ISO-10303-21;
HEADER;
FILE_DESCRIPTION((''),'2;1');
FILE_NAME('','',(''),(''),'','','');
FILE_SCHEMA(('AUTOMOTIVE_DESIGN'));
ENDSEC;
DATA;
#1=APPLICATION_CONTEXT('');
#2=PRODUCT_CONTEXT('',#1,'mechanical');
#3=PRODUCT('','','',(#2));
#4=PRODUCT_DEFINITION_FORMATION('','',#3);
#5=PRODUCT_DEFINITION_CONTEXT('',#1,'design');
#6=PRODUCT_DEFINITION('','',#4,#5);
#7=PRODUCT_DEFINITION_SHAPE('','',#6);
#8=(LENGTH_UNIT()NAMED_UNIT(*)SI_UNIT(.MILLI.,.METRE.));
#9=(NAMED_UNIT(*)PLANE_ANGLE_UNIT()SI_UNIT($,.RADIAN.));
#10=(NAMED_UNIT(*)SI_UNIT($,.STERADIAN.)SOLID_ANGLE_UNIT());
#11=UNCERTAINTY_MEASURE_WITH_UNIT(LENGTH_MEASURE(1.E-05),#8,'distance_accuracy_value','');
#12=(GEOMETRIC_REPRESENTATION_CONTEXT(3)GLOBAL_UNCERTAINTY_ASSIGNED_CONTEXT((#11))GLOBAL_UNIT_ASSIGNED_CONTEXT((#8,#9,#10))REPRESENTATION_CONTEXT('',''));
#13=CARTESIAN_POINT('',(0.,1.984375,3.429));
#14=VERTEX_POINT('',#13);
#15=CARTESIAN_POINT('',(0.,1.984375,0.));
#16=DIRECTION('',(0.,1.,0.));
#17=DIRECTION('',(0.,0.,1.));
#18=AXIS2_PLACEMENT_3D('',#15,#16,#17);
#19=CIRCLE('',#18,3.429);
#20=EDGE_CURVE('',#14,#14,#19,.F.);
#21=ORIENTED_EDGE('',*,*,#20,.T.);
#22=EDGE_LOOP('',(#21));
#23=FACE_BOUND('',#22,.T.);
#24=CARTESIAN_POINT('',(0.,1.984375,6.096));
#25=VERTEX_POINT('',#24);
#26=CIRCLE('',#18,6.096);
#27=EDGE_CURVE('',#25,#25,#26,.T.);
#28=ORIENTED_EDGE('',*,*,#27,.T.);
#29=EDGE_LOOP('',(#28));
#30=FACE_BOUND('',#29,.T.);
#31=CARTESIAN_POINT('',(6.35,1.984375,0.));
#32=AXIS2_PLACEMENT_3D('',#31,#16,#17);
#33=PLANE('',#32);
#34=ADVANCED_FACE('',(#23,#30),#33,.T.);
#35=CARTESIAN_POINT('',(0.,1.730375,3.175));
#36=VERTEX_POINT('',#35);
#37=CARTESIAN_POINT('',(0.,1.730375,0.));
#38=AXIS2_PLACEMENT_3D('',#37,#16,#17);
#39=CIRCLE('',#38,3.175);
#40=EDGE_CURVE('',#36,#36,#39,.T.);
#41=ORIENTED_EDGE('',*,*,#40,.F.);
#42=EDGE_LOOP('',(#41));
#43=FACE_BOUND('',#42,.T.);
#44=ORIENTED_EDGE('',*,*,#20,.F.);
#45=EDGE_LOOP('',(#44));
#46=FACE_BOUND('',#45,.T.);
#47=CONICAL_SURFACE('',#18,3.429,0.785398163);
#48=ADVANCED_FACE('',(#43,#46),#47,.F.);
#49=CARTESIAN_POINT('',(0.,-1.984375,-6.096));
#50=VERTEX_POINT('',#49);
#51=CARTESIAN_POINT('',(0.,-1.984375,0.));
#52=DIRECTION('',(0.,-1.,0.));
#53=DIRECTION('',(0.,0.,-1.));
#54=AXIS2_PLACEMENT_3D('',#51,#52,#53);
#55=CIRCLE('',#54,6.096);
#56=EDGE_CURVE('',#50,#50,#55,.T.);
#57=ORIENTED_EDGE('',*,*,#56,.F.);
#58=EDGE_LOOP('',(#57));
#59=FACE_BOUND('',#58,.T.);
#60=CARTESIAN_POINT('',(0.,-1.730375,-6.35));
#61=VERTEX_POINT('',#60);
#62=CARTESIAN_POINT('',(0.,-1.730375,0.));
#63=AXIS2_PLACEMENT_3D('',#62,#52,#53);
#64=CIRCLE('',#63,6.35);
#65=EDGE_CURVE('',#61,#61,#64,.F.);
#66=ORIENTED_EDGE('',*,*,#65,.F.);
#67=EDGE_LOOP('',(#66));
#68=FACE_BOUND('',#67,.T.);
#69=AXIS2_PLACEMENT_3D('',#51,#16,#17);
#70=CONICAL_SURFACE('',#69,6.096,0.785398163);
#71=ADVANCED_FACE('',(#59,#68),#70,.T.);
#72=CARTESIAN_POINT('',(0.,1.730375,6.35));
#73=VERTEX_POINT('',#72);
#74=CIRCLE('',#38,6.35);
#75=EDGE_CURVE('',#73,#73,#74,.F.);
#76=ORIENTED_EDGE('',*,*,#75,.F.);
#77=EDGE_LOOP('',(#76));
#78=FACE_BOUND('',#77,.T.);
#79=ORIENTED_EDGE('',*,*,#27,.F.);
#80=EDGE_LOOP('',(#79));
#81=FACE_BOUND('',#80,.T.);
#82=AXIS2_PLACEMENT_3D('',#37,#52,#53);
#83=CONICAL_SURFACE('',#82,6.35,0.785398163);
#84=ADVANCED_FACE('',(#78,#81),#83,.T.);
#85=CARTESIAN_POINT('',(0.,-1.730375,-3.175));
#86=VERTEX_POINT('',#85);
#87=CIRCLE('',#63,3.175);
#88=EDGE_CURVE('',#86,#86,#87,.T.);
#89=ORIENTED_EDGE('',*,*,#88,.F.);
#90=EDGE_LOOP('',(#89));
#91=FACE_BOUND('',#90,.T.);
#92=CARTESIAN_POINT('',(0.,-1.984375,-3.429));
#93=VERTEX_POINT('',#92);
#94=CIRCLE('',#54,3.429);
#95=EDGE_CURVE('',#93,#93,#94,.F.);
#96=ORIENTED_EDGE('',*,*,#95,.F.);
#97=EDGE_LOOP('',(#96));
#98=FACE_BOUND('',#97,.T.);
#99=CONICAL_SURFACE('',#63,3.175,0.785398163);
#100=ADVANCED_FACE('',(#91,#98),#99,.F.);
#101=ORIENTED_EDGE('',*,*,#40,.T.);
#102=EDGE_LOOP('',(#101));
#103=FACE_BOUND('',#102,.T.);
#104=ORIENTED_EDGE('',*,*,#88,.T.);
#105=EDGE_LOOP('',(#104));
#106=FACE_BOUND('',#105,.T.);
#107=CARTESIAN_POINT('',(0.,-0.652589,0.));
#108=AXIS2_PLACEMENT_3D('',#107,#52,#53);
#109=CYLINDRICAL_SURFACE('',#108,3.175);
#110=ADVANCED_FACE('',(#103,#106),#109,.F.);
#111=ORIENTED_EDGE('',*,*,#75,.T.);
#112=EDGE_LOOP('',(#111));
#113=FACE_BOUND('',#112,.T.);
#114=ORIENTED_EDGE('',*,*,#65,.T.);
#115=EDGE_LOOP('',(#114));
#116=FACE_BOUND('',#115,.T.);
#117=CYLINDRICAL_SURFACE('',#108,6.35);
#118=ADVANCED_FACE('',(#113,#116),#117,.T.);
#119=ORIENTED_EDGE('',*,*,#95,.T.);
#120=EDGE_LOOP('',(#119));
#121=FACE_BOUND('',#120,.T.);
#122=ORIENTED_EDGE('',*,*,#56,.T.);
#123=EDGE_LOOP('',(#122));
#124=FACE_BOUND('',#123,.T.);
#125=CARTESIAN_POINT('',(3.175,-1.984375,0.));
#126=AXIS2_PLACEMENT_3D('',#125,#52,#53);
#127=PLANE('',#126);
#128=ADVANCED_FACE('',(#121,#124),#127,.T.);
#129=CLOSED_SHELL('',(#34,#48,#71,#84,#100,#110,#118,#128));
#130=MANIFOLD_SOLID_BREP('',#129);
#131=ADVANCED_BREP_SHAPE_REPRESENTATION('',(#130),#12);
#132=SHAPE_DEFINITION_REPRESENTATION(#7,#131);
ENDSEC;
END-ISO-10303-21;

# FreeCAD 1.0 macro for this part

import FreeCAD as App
import Part
import Sketcher

V = App.Vector
Q = App.Units.Quantity


def edges_at(feature, points):
    """Names of the edges that pass closest to the given points."""
    edges = feature.Shape.Edges
    near = lambda p: min(range(len(edges)), key=lambda i: edges[i].distToShape(Part.Vertex(*p))[0])
    return sorted({f"Edge{near(p) + 1}" for p in points})

doc = App.newDocument("Part")
body = doc.addObject("PartDesign::Body", "Body")

# Sketch on XY plane
sketch1 = body.newObject("Sketcher::SketchObject", "Sketch")
sketch1.AttachmentSupport = (doc.getObject("XY_Plane"), [""])
sketch1.MapMode = "FlatFace"
sketch1.addGeometry([
    Part.LineSegment(V(3.2, 2, 0), V(3.2, -2, 0)),
    Part.LineSegment(V(3.2, -2, 0), V(6.3, -2, 0)),
    Part.LineSegment(V(6.3, -2, 0), V(6.3, 2, 0)),
    Part.LineSegment(V(6.3, 2, 0), V(3.2, 2, 0)),
], False)
sketch1.addConstraint([
    Sketcher.Constraint("Coincident", 0, 2, 1, 1),
    Sketcher.Constraint("Coincident", 1, 2, 2, 1),
    Sketcher.Constraint("Coincident", 2, 2, 3, 1),
    Sketcher.Constraint("Coincident", 3, 2, 0, 1),
    Sketcher.Constraint("Vertical", 0),
    Sketcher.Constraint("Horizontal", 1),
    Sketcher.Constraint("Vertical", 2),
    Sketcher.Constraint("Horizontal", 3),
    Sketcher.Constraint("DistanceX", 1, 1, 1, 2, Q("0.125 in")),
    Sketcher.Constraint("DistanceY", 0, 2, 0, 1, Q("0.15625 in")),
    Sketcher.Constraint("DistanceX", -1, 1, 1, 2, Q("0.25 in")),
    Sketcher.Constraint("DistanceY", 0, 2, -1, 1, Q("0.078125 in")),
])
revolution = body.newObject("PartDesign::Revolution", "Revolution")
revolution.Profile = sketch1
revolution.ReferenceAxis = (sketch1, ["V_Axis"])
revolution.Angle = 360
doc.recompute()

chamfer = body.newObject("PartDesign::Chamfer", "Chamfer")
chamfer.Base = (revolution, edges_at(revolution, [
    (-6.35, 1.984, 0),
    (-6.35, -1.984, 0),
    (-3.175, -1.984, 0),
    (-3.175, 1.984, 0),
]))
chamfer.Size = Q("0.01 in")

doc.recompute()
